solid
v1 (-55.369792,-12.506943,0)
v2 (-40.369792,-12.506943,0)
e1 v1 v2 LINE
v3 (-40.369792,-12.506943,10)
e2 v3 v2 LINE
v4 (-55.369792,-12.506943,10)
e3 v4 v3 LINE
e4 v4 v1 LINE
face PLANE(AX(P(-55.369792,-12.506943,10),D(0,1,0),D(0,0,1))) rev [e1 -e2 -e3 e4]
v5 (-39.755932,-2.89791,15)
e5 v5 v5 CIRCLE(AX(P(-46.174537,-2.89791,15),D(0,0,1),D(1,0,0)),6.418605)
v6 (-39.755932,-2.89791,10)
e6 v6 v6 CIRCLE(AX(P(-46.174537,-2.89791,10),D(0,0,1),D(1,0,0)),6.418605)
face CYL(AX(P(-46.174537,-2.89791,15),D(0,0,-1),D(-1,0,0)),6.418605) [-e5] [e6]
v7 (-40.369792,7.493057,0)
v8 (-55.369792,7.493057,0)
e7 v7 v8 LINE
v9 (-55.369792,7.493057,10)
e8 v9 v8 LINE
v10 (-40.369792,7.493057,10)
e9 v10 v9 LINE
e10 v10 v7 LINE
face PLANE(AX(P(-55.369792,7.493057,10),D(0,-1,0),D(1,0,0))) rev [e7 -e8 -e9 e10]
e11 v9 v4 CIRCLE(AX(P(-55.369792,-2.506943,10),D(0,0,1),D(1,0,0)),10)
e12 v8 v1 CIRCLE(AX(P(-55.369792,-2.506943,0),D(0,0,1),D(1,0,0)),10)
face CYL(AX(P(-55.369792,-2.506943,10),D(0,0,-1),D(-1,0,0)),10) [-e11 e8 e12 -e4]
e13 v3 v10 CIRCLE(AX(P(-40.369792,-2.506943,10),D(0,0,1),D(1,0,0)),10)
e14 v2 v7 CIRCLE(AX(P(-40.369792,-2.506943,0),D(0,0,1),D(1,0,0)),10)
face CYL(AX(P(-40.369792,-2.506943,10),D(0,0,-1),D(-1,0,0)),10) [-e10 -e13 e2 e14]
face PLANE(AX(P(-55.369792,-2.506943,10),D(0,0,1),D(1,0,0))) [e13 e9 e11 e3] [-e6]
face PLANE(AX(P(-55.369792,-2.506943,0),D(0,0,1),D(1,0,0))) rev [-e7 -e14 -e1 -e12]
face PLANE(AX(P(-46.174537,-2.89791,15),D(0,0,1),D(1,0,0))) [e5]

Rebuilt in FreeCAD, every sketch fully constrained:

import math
import FreeCAD as App
import Part
import Sketcher
from FreeCAD import Vector
Q = App.Units.Quantity

doc = App.newDocument("Part")
body = doc.addObject("PartDesign::Body", "Body")

# Sketch on XY plane
sketch1 = body.newObject("Sketcher::SketchObject", "Sketch")
sketch1.AttachmentSupport = (doc.getObject("XY_Plane"), [""])
sketch1.MapMode = "FlatFace"
sketch1.addGeometry(Part.LineSegment(Vector(-40.369792, 7.493057, 0), Vector(-55.369792, 7.493057, 0)), False)
sketch1.addGeometry(Part.ArcOfCircle(Part.Circle(Vector(-55.369792, -2.506943, 0), Vector(0, 0, 1), 10), math.radians(90), math.radians(270)), False)
sketch1.addGeometry(Part.LineSegment(Vector(-55.369792, -12.506943, 0), Vector(-40.369792, -12.506943, 0)), False)
sketch1.addGeometry(Part.ArcOfCircle(Part.Circle(Vector(-40.369792, -2.506943, 0), Vector(0, 0, 1), 10), math.radians(-90), math.radians(90)), False)
sketch1.addConstraint(Sketcher.Constraint("Tangent", 0, 2, 1, 1))
sketch1.addConstraint(Sketcher.Constraint("Tangent", 1, 2, 2, 1))
sketch1.addConstraint(Sketcher.Constraint("Tangent", 2, 2, 3, 1))
sketch1.addConstraint(Sketcher.Constraint("Tangent", 3, 2, 0, 1))
sketch1.addConstraint(Sketcher.Constraint("Horizontal", 0))
sketch1.addConstraint(Sketcher.Constraint("Horizontal", 2))
sketch1.addConstraint(Sketcher.Constraint("Radius", 1, Q("10 mm")))
sketch1.addConstraint(Sketcher.Constraint("DistanceX", 0, 2, 0, 1, Q("15 mm")))
sketch1.addConstraint(Sketcher.Constraint("DistanceX", 1, 3, -1, 1, Q("55.369792 mm")))
sketch1.addConstraint(Sketcher.Constraint("DistanceY", 1, 3, -1, 1, Q("2.506943 mm")))
pad1 = body.newObject("PartDesign::Pad", "Pad")
pad1.Profile = sketch1
pad1.Length = 10

# Sketch on XY plane
sketch2 = body.newObject("Sketcher::SketchObject", "Sketch001")
sketch2.AttachmentSupport = (doc.getObject("XY_Plane"), [""])
sketch2.MapMode = "FlatFace"
sketch2.AttachmentOffset = App.Placement(Vector(0, 0, 10), App.Rotation())
sketch2.addGeometry(Part.Circle(Vector(-46.174537, -2.89791, 0), Vector(0, 0, 1), 6.418605), False)
sketch2.addConstraint(Sketcher.Constraint("Diameter", 0, Q("12.83721 mm")))
sketch2.addConstraint(Sketcher.Constraint("DistanceY", 0, 3, -1, 1, Q("2.89791 mm")))
sketch2.addConstraint(Sketcher.Constraint("DistanceX", 0, 3, -1, 1, Q("46.174537 mm")))
pad2 = body.newObject("PartDesign::Pad", "Pad001")
pad2.Profile = sketch2
pad2.Length = 5

doc.recompute()
